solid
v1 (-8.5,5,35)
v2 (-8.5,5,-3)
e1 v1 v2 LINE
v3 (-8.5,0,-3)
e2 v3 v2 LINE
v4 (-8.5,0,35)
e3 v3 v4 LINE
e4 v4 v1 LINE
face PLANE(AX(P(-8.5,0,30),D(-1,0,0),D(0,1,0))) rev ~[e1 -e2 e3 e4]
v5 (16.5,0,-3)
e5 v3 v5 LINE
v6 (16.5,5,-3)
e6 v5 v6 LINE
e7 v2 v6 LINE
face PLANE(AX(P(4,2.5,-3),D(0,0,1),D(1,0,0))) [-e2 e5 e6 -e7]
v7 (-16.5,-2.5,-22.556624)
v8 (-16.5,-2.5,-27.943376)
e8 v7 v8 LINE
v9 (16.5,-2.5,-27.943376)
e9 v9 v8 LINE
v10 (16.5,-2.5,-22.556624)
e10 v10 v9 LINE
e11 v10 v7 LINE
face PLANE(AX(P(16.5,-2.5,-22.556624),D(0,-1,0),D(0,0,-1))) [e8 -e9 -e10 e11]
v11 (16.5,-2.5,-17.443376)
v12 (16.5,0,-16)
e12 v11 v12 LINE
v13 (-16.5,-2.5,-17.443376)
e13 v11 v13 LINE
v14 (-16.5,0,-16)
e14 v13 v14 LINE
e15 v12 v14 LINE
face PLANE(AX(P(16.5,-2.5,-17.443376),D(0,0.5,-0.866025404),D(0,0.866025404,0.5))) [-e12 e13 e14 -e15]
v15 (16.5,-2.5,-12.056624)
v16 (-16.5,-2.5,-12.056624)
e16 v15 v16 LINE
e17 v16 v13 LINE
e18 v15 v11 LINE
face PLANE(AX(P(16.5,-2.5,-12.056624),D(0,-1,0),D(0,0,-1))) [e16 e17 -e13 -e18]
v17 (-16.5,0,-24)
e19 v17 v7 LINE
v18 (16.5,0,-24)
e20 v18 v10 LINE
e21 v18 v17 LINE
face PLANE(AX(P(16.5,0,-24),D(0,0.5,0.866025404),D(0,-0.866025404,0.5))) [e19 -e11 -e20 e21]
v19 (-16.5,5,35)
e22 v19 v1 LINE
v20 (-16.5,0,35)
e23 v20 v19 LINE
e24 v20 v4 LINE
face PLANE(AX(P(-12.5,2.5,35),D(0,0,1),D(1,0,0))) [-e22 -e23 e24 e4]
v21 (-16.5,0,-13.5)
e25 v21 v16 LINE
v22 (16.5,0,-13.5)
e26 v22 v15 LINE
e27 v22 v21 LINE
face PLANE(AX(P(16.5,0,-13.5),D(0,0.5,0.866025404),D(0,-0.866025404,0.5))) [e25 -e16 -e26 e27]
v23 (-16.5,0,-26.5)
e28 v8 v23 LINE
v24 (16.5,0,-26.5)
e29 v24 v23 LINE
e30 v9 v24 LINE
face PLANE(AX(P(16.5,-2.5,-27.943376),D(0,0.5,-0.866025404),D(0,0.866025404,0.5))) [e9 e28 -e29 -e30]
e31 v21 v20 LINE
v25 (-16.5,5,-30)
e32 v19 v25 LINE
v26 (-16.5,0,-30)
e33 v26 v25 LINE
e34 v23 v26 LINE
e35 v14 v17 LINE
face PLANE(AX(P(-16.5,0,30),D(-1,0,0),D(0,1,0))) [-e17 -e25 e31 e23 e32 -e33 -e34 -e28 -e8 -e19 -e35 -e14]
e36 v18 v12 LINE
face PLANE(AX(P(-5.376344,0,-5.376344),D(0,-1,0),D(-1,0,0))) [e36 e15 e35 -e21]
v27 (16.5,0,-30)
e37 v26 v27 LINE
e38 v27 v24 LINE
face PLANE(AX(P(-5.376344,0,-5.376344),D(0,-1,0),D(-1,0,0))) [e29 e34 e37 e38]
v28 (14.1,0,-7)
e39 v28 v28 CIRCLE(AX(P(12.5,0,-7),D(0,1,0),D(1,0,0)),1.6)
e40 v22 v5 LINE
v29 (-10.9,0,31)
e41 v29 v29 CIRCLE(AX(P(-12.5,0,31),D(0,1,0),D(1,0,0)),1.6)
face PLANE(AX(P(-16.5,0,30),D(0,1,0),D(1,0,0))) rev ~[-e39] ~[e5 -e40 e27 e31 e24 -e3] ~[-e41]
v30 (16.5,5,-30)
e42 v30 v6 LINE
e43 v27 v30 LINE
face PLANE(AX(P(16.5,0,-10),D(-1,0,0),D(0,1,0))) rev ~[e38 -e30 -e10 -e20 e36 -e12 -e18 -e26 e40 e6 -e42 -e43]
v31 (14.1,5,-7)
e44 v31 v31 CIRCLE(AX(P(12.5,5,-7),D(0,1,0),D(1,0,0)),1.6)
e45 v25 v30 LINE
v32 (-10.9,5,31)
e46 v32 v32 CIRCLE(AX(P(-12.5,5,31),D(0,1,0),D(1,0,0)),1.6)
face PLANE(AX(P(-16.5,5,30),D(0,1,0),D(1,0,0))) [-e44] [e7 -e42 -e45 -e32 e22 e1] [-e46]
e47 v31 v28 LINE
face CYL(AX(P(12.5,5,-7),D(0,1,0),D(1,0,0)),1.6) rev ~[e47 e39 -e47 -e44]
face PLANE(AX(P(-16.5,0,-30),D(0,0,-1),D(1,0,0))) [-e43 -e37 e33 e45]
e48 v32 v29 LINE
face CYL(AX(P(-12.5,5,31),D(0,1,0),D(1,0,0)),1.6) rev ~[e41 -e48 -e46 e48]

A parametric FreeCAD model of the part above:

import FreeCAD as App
import Part
import Sketcher

V = App.Vector
Q = App.Units.Quantity

doc = App.newDocument("Part")
params = doc.addObject("Spreadsheet::Sheet", "Params")
for row, (alias, value) in enumerate([
    ("sketch1_width", "25 mm"),
    ("sketch1_width2", "33 mm"),
    ("sketch1_height", "40 mm"),
    ("sketch1_height2", "20 mm"),
    ("pad1_length", "5 mm"),
    ("sketch2_height", "2.5 mm"),
    ("pad2_length", "33 mm"),
    ("sketch3_width", "25 mm"),
    ("sketch3_height", "5 mm"),
    ("pad3_length", "7 mm"),
    ("sketch4_width", "8 mm"),
    ("sketch4_height", "5 mm"),
    ("pad4_length", "5 mm"),
    ("sketch5_diameter", "3.2 mm"),
    ("pocket1_length", "5 mm"),
], start=1):
    params.set(f"A{row}", alias)
    params.set(f"B{row}", "=" + value)
    params.setAlias(f"B{row}", alias)

body = doc.addObject("PartDesign::Body", "Body")

sketch1 = doc.addObject("Sketcher::SketchObject", "Sketch")
body.addObject(sketch1)
sketch1.AttachmentSupport = (doc.XZ_Plane, [""])
sketch1.MapMode = "FlatFace"
sketch1.addGeometry(Part.LineSegment(V(-8, 30, 0), V(-8, -10, 0)), False)
sketch1.addGeometry(Part.LineSegment(V(-8, -10, 0), V(16, -10, 0)), False)
sketch1.addGeometry(Part.LineSegment(V(16, -10, 0), V(16, -30, 0)), False)
sketch1.addGeometry(Part.LineSegment(V(16, -30, 0), V(-16, -30, 0)), False)
sketch1.addGeometry(Part.LineSegment(V(-16, -30, 0), V(-16, 30, 0)), False)
sketch1.addGeometry(Part.LineSegment(V(-16, 30, 0), V(-8, 30, 0)), False)
sketch1.addConstraint(Sketcher.Constraint("Coincident", 0, 2, 1, 1))
sketch1.addConstraint(Sketcher.Constraint("Coincident", 1, 2, 2, 1))
sketch1.addConstraint(Sketcher.Constraint("Coincident", 2, 2, 3, 1))
sketch1.addConstraint(Sketcher.Constraint("Coincident", 3, 2, 4, 1))
sketch1.addConstraint(Sketcher.Constraint("Coincident", 4, 2, 5, 1))
sketch1.addConstraint(Sketcher.Constraint("Coincident", 5, 2, 0, 1))
sketch1.addConstraint(Sketcher.Constraint("Vertical", 0))
sketch1.addConstraint(Sketcher.Constraint("Horizontal", 1))
sketch1.addConstraint(Sketcher.Constraint("Vertical", 2))
sketch1.addConstraint(Sketcher.Constraint("Horizontal", 3))
sketch1.addConstraint(Sketcher.Constraint("Vertical", 4))
sketch1.addConstraint(Sketcher.Constraint("Horizontal", 5))
sketch1.addConstraint(Sketcher.Constraint("Symmetric", 2, 2, 4, 2, -1, 1))
sketch1.addConstraint(Sketcher.Constraint("DistanceX", 1, 1, 1, 2, 25.0))
sketch1.addConstraint(Sketcher.Constraint("DistanceX", 3, 2, 3, 1, 33.0))
sketch1.addConstraint(Sketcher.Constraint("DistanceY", 0, 2, 0, 1, 40.0))
sketch1.addConstraint(Sketcher.Constraint("DistanceY", 2, 2, 2, 1, 20.0))
sketch1.setExpression("Constraints[13]", "Params.sketch1_width")
sketch1.setExpression("Constraints[14]", "Params.sketch1_width2")
sketch1.setExpression("Constraints[15]", "Params.sketch1_height")
sketch1.setExpression("Constraints[16]", "Params.sketch1_height2")
pad1 = doc.addObject("PartDesign::Pad", "Pad")
body.addObject(pad1)
pad1.Profile = sketch1
pad1.setExpression("Length", "Params.pad1_length")
pad1.Reversed = True

sketch2 = doc.addObject("Sketcher::SketchObject", "Sketch001")
body.addObject(sketch2)
sketch2.AttachmentSupport = (doc.YZ_Plane, [""])
sketch2.MapMode = "FlatFace"
sketch2.AttachmentOffset = App.Placement(V(0, 0, 16.5), App.Rotation())
sketch2.addGeometry(Part.LineSegment(V(-2.5, -17.4, 0), V(0, -16, 0)), False)
sketch2.addGeometry(Part.LineSegment(V(0, -16, 0), V(0, -13.5, 0)), False)
sketch2.addGeometry(Part.LineSegment(V(0, -13.5, 0), V(-2.5, -12.1, 0)), False)
sketch2.addGeometry(Part.LineSegment(V(-2.5, -12.1, 0), V(-2.5, -17.4, 0)), False)
sketch2.addGeometry(Part.LineSegment(V(-2.5, -22.6, 0), V(-2.5, -27.9, 0)), False)
sketch2.addGeometry(Part.LineSegment(V(-2.5, -27.9, 0), V(0, -26.5, 0)), False)
sketch2.addGeometry(Part.LineSegment(V(0, -26.5, 0), V(0, -24, 0)), False)
sketch2.addGeometry(Part.LineSegment(V(0, -24, 0), V(-2.5, -22.6, 0)), False)
sketch2.addConstraint(Sketcher.Constraint("Coincident", 0, 2, 1, 1))
sketch2.addConstraint(Sketcher.Constraint("Coincident", 1, 2, 2, 1))
sketch2.addConstraint(Sketcher.Constraint("Coincident", 2, 2, 3, 1))
sketch2.addConstraint(Sketcher.Constraint("Coincident", 3, 2, 0, 1))
sketch2.addConstraint(Sketcher.Constraint("Coincident", 4, 2, 5, 1))
sketch2.addConstraint(Sketcher.Constraint("Coincident", 5, 2, 6, 1))
sketch2.addConstraint(Sketcher.Constraint("Coincident", 6, 2, 7, 1))
sketch2.addConstraint(Sketcher.Constraint("Coincident", 7, 2, 4, 1))
sketch2.addConstraint(Sketcher.Constraint("Vertical", 1))
sketch2.addConstraint(Sketcher.Constraint("Vertical", 3))
sketch2.addConstraint(Sketcher.Constraint("Vertical", 4))
sketch2.addConstraint(Sketcher.Constraint("Vertical", 6))
sketch2.addConstraint(Sketcher.Constraint("PointOnObject", 0, 2, -2))
sketch2.addConstraint(Sketcher.Constraint("PointOnObject", 5, 2, -2))
sketch2.addConstraint(Sketcher.Constraint("Parallel", 0, 5))
sketch2.addConstraint(Sketcher.Constraint("Parallel", 2, 7))
sketch2.addConstraint(Sketcher.Constraint("Vertical", 3, 2, 4, 2))
sketch2.addConstraint(Sketcher.Constraint("Equal", 3, 4))
sketch2.addConstraint(Sketcher.Constraint("Equal", 0, 2))
sketch2.addConstraint(Sketcher.Constraint("Angle", 0, Q("30 deg")))
sketch2.addConstraint(Sketcher.Constraint("DistanceY", 1, 1, 1, 2, 2.5))
sketch2.addConstraint(Sketcher.Constraint("DistanceY", 0, 2, -1, 1, 16.0))
sketch2.addConstraint(Sketcher.Constraint("DistanceY", 6, 2, -1, 1, 24.0))
sketch2.addConstraint(Sketcher.Constraint("DistanceX", 2, 2, -1, 1, 2.5))
sketch2.setExpression("Constraints[20]", "Params.sketch2_height")
pad2 = doc.addObject("PartDesign::Pad", "Pad001")
body.addObject(pad2)
pad2.Profile = sketch2
pad2.setExpression("Length", "Params.pad2_length")
pad2.Reversed = True

sketch3 = doc.addObject("Sketcher::SketchObject", "Sketch002")
body.addObject(sketch3)
sketch3.AttachmentSupport = (doc.XY_Plane, [""])
sketch3.MapMode = "FlatFace"
sketch3.AttachmentOffset = App.Placement(V(0, 0, -10), App.Rotation())
sketch3.addGeometry(Part.LineSegment(V(-8, 5, 0), V(-8, 0, 0)), False)
sketch3.addGeometry(Part.LineSegment(V(-8, 0, 0), V(16, 0, 0)), False)
sketch3.addGeometry(Part.LineSegment(V(16, 0, 0), V(16, 5, 0)), False)
sketch3.addGeometry(Part.LineSegment(V(16, 5, 0), V(-8, 5, 0)), False)
sketch3.addConstraint(Sketcher.Constraint("Coincident", 0, 2, 1, 1))
sketch3.addConstraint(Sketcher.Constraint("Coincident", 1, 2, 2, 1))
sketch3.addConstraint(Sketcher.Constraint("Coincident", 2, 2, 3, 1))
sketch3.addConstraint(Sketcher.Constraint("Coincident", 3, 2, 0, 1))
sketch3.addConstraint(Sketcher.Constraint("Vertical", 0))
sketch3.addConstraint(Sketcher.Constraint("Horizontal", 1))
sketch3.addConstraint(Sketcher.Constraint("Vertical", 2))
sketch3.addConstraint(Sketcher.Constraint("Horizontal", 3))
sketch3.addConstraint(Sketcher.Constraint("PointOnObject", 0, 2, -1))
sketch3.addConstraint(Sketcher.Constraint("DistanceX", 1, 1, 1, 2, 25.0))
sketch3.addConstraint(Sketcher.Constraint("DistanceY", 0, 2, 0, 1, 5.0))
sketch3.addConstraint(Sketcher.Constraint("DistanceX", 0, 2, -1, 1, 8.5))
sketch3.setExpression("Constraints[9]", "Params.sketch3_width")
sketch3.setExpression("Constraints[10]", "Params.sketch3_height")
pad3 = doc.addObject("PartDesign::Pad", "Pad002")
body.addObject(pad3)
pad3.Profile = sketch3
pad3.setExpression("Length", "Params.pad3_length")

sketch4 = doc.addObject("Sketcher::SketchObject", "Sketch003")
body.addObject(sketch4)
sketch4.AttachmentSupport = (doc.XY_Plane, [""])
sketch4.MapMode = "FlatFace"
sketch4.AttachmentOffset = App.Placement(V(0, 0, 30), App.Rotation())
sketch4.addGeometry(Part.LineSegment(V(-16, 5, 0), V(-16, 0, 0)), False)
sketch4.addGeometry(Part.LineSegment(V(-16, 0, 0), V(-8, 0, 0)), False)
sketch4.addGeometry(Part.LineSegment(V(-8, 0, 0), V(-8, 5, 0)), False)
sketch4.addGeometry(Part.LineSegment(V(-8, 5, 0), V(-16, 5, 0)), False)
sketch4.addConstraint(Sketcher.Constraint("Coincident", 0, 2, 1, 1))
sketch4.addConstraint(Sketcher.Constraint("Coincident", 1, 2, 2, 1))
sketch4.addConstraint(Sketcher.Constraint("Coincident", 2, 2, 3, 1))
sketch4.addConstraint(Sketcher.Constraint("Coincident", 3, 2, 0, 1))
sketch4.addConstraint(Sketcher.Constraint("Vertical", 0))
sketch4.addConstraint(Sketcher.Constraint("Horizontal", 1))
sketch4.addConstraint(Sketcher.Constraint("Vertical", 2))
sketch4.addConstraint(Sketcher.Constraint("Horizontal", 3))
sketch4.addConstraint(Sketcher.Constraint("PointOnObject", 0, 2, -1))
sketch4.addConstraint(Sketcher.Constraint("DistanceX", 1, 1, 1, 2, 8.0))
sketch4.addConstraint(Sketcher.Constraint("DistanceY", 0, 2, 0, 1, 5.0))
sketch4.addConstraint(Sketcher.Constraint("DistanceX", 0, 2, -1, 1, 16.5))
sketch4.setExpression("Constraints[9]", "Params.sketch4_width")
sketch4.setExpression("Constraints[10]", "Params.sketch4_height")
pad4 = doc.addObject("PartDesign::Pad", "Pad003")
body.addObject(pad4)
pad4.Profile = sketch4
pad4.setExpression("Length", "Params.pad4_length")

sketch5 = doc.addObject("Sketcher::SketchObject", "Sketch004")
body.addObject(sketch5)
sketch5.AttachmentSupport = (doc.XZ_Plane, [""])
sketch5.MapMode = "FlatFace"
sketch5.AttachmentOffset = App.Placement(V(0, 0, -5), App.Rotation())
sketch5.addGeometry(Part.Circle(V(12.5, -7, 0), V(0, 0, 1), 1.6), False)
sketch5.addGeometry(Part.Circle(V(-12.5, 31, 0), V(0, 0, 1), 1.6), False)
sketch5.addConstraint(Sketcher.Constraint("Equal", 0, 1))
sketch5.addConstraint(Sketcher.Constraint("Diameter", 0, 3.2))
sketch5.addConstraint(Sketcher.Constraint("DistanceY", 0, 3, -1, 1, 7.0))
sketch5.addConstraint(Sketcher.Constraint("DistanceY", -1, 1, 1, 3, 31.0))
sketch5.addConstraint(Sketcher.Constraint("DistanceX", 1, 3, 0, 3, 25.0))
sketch5.addConstraint(Sketcher.Constraint("DistanceX", -1, 1, 0, 3, 12.5))
sketch5.setExpression("Constraints[1]", "Params.sketch5_diameter")
pocket1 = doc.addObject("PartDesign::Pocket", "Pocket")
body.addObject(pocket1)
pocket1.Profile = sketch5
pocket1.setExpression("Length", "Params.pocket1_length")
pocket1.Reversed = True

doc.recompute()
